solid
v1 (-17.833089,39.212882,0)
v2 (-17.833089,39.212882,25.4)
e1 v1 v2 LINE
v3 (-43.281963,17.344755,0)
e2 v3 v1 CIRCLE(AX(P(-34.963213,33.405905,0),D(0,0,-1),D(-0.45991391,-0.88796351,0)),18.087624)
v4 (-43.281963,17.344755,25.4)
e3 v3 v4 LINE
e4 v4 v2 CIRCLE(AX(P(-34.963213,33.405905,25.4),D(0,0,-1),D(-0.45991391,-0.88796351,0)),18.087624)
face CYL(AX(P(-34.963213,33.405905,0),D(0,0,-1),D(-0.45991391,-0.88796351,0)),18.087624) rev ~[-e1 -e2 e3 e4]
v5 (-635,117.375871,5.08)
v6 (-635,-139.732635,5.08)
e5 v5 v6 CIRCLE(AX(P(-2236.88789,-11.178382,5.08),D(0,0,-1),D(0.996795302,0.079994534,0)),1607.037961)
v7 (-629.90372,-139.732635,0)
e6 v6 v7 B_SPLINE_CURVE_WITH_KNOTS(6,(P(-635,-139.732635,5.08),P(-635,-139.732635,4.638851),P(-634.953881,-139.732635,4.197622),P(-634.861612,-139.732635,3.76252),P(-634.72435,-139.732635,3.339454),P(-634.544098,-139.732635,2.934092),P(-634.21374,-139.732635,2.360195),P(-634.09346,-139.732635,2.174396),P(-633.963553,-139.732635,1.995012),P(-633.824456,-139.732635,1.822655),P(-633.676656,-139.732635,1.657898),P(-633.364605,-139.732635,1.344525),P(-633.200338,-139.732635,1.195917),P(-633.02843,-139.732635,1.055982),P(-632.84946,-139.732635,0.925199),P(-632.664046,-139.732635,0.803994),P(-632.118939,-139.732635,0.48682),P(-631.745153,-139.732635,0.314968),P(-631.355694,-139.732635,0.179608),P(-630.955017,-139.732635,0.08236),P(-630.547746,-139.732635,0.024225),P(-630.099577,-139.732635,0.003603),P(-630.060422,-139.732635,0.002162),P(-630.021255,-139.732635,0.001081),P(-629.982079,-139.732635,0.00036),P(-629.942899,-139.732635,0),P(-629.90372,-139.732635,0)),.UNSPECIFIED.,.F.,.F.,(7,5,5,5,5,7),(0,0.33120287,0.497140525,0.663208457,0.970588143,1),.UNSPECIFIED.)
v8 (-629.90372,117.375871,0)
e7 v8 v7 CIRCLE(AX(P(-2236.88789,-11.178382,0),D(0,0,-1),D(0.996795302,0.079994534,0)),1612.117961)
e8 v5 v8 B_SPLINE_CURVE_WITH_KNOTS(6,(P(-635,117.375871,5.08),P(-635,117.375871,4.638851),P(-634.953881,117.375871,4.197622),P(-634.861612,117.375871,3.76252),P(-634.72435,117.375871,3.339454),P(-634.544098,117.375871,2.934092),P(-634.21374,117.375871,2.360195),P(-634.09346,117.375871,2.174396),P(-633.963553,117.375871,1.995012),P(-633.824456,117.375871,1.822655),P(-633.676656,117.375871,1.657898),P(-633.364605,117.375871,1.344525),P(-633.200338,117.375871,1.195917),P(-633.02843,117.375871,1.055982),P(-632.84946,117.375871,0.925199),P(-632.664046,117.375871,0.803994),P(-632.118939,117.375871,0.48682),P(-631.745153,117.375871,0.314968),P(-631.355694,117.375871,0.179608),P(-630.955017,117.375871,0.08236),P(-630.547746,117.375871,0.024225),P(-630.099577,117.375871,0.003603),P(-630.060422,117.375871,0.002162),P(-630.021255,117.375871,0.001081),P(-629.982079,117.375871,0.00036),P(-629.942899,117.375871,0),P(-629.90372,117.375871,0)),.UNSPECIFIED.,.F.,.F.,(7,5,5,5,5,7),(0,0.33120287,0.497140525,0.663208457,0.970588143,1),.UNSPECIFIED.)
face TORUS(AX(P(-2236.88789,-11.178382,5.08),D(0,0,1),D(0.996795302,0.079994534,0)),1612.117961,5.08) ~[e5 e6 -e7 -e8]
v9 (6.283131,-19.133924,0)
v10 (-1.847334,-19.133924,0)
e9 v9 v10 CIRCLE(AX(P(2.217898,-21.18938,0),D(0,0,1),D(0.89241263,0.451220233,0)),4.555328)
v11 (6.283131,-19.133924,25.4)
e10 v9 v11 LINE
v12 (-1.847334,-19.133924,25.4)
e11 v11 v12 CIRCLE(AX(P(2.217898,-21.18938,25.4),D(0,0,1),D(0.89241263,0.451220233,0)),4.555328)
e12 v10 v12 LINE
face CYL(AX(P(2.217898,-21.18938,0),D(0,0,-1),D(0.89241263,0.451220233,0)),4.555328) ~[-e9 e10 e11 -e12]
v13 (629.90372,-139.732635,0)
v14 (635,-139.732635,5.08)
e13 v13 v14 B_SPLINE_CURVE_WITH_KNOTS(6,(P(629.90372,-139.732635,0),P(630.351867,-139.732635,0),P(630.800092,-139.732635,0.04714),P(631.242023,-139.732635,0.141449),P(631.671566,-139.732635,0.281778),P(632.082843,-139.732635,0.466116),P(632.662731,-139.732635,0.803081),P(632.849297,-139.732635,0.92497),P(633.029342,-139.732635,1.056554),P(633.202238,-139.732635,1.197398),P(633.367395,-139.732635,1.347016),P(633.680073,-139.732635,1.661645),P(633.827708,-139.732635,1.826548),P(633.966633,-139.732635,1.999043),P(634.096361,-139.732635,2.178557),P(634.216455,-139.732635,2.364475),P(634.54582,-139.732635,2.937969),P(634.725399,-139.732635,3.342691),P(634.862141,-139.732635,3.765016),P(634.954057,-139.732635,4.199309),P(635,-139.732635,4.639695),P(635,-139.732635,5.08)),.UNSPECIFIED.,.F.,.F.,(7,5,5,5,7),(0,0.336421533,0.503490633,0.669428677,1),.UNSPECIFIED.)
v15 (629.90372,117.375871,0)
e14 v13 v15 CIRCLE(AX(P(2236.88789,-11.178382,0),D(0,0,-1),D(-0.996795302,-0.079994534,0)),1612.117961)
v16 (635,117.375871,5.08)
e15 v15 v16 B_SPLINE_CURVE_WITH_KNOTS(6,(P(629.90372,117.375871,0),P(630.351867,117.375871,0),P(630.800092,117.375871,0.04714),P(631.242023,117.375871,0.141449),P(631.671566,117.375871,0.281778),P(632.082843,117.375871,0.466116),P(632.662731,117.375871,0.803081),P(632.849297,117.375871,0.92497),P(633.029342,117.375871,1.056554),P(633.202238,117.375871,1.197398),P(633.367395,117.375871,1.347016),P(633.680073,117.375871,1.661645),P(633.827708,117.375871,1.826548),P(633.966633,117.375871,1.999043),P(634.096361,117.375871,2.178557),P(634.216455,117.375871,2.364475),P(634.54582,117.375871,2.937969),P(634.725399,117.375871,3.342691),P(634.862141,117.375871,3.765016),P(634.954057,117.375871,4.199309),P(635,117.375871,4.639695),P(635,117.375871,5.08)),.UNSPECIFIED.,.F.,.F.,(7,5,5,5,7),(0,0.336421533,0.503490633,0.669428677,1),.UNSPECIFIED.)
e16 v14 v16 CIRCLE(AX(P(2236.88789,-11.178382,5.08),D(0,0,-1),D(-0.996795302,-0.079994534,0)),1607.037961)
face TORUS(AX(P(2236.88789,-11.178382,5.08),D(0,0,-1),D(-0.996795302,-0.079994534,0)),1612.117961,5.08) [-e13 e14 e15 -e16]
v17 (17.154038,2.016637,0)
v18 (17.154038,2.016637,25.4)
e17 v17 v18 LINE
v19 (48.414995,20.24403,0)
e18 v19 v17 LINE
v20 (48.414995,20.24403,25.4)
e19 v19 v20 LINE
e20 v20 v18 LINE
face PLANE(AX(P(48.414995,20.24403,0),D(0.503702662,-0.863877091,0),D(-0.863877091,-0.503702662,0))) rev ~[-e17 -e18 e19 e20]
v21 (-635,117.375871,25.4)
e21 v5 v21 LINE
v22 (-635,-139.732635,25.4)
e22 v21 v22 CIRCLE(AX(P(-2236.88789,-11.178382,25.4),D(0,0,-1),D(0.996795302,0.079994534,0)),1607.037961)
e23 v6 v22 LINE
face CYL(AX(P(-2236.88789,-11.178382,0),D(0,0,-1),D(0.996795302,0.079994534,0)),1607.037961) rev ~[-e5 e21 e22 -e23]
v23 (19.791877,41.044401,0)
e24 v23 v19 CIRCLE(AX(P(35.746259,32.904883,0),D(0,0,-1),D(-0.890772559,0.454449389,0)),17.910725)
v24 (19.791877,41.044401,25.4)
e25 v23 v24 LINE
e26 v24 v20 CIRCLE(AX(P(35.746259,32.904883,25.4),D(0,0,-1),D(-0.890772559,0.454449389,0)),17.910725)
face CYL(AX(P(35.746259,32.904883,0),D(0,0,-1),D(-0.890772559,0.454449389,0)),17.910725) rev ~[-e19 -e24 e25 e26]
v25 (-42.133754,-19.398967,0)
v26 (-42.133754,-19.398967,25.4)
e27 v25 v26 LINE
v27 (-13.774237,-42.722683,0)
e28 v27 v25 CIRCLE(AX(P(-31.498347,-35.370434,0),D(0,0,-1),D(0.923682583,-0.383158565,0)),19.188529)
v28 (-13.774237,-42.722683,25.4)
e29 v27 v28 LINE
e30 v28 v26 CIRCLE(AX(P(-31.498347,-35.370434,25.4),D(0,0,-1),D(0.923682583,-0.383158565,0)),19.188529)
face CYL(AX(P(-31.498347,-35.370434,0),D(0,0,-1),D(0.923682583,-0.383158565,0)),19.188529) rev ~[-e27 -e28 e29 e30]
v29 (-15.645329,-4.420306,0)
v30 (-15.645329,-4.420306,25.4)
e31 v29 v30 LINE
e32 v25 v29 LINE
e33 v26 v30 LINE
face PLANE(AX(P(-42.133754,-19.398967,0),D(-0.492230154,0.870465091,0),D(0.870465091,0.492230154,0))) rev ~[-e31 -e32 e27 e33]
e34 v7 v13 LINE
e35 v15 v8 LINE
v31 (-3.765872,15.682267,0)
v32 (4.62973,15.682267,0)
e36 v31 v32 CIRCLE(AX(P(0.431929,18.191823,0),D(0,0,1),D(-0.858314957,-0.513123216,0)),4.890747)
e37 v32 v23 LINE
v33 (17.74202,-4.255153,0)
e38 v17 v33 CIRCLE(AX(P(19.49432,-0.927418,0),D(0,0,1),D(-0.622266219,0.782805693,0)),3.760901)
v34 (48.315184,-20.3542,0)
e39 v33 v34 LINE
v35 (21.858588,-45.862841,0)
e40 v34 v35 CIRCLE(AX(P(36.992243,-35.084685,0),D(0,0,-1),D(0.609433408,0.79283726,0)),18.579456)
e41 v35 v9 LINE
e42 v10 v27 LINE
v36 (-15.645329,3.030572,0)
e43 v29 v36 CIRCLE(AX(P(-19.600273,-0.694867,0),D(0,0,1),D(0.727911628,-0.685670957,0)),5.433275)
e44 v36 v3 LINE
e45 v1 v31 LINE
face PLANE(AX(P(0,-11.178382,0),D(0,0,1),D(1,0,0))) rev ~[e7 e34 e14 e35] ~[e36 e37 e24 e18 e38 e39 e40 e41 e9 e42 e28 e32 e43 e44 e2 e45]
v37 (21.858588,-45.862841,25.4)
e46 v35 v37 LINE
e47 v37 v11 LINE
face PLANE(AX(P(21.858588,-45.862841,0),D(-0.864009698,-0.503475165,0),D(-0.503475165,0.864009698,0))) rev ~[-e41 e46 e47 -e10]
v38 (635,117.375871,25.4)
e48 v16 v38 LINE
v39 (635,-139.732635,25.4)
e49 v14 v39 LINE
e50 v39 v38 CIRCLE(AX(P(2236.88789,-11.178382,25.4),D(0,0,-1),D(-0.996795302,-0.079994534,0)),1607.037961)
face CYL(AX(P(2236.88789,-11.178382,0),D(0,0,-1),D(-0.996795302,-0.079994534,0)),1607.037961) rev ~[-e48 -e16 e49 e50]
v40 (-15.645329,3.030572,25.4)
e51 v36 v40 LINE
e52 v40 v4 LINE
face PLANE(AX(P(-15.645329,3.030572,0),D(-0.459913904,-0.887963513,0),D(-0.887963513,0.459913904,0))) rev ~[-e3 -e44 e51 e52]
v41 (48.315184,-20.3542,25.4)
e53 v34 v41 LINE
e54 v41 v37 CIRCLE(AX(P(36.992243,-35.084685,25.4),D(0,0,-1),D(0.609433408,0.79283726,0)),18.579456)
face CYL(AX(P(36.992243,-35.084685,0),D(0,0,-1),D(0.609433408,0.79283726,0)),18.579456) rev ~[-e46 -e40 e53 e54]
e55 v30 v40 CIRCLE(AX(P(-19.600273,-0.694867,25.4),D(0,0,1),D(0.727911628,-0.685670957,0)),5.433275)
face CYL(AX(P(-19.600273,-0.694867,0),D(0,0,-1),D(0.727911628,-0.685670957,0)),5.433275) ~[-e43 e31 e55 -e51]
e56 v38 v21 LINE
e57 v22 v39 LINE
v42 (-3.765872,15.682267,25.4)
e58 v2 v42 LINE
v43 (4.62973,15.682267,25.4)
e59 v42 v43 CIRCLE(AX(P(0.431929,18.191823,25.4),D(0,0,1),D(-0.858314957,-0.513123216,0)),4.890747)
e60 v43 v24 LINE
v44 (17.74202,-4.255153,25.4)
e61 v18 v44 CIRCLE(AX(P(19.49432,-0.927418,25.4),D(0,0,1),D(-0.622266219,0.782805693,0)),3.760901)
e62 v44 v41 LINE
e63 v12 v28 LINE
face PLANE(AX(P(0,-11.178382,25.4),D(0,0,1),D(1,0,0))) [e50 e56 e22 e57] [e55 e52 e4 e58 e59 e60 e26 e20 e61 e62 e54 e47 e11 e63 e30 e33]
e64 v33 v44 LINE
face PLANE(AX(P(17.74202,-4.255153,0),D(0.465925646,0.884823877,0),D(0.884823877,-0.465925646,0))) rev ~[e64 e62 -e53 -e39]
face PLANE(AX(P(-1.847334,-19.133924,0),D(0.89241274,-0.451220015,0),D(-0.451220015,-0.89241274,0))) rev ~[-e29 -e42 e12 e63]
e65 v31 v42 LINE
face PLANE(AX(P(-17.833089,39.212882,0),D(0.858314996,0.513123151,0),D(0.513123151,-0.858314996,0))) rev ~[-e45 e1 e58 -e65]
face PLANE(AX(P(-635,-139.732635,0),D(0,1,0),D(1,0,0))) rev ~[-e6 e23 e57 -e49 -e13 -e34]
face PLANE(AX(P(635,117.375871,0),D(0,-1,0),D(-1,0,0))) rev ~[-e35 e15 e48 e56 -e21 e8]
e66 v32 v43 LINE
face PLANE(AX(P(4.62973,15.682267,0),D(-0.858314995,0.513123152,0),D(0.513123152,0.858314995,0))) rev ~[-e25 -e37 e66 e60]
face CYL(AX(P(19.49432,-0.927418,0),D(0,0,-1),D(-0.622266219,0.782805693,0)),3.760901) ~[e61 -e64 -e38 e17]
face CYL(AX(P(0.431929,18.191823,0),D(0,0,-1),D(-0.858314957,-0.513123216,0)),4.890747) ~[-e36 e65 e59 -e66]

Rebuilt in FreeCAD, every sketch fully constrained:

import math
import FreeCAD as App
import Part
import Sketcher

V = App.Vector
Q = App.Units.Quantity


def edges_at(feature, points):
    """Names of the edges that pass closest to the given points."""
    edges = feature.Shape.Edges
    near = lambda p: min(range(len(edges)), key=lambda i: edges[i].distToShape(Part.Vertex(*p))[0])
    return sorted({f"Edge{near(p) + 1}" for p in points})

doc = App.newDocument("Part")
params = doc.addObject("Spreadsheet::Sheet", "Params")
for row, (alias, value) in enumerate([
    ("sketch1_width", "50 in"),
    ("sketch1_width2", "50 in"),
    ("pad1_length", "1 in"),
    ("fillet_radius", "0.2 in"),
    ("fillet2_radius", "0.2 in"),
], start=1):
    params.set(f"A{row}", alias)
    params.set(f"B{row}", "=" + value)
    params.setAlias(f"B{row}", alias)

body = doc.addObject("PartDesign::Body", "Body")

# Sketch on XY plane
sketch1 = body.newObject("Sketcher::SketchObject", "Sketch")
sketch1.AttachmentSupport = (doc.getObject("XY_Plane"), [""])
sketch1.MapMode = "FlatFace"
sketch1.addGeometry([
    Part.ArcOfCircle(Part.Circle(V(-2236.88789, -11.178382, 0), V(0, 0, 1), 1607.037961), math.radians(-4.588252), math.radians(4.588252)),  # 0
    Part.LineSegment(V(-635, -139.732635, 0), V(635, -139.732635, 0)),  # 1
    Part.ArcOfCircle(Part.Circle(V(2236.88789, -11.178382, 0), V(0, 0, 1), 1607.037961), math.radians(175.411748), math.radians(184.588252)),  # 2
    Part.LineSegment(V(635, 117.375871, 0), V(-635, 117.375871, 0)),  # 3
    Part.LineSegment(V(-15.645329, 3.030572, 0), V(-43.281963, 17.344755, 0)),  # 4
    Part.ArcOfCircle(Part.Circle(V(-34.963213, 33.405905, 0), V(0, 0, 1), 18.087624), math.radians(18.726254), math.radians(242.618448)),  # 5
    Part.LineSegment(V(-17.833089, 39.212882, 0), V(-3.765872, 15.682267, 0)),  # 6
    Part.ArcOfCircle(Part.Circle(V(0.431929, 18.191823, 0), V(0, 0, 1), 4.890747), math.radians(-149.12791), math.radians(-30.87209)),  # 7
    Part.LineSegment(V(4.62973, 15.682267, 0), V(19.791877, 41.044401, 0)),  # 8
    Part.ArcOfCircle(Part.Circle(V(35.746259, 32.904883, 0), V(0, 0, 1), 17.910725), math.radians(-44.982169), math.radians(152.970487)),  # 9
    Part.LineSegment(V(48.414995, 20.24403, 0), V(17.154038, 2.016637, 0)),  # 10
    Part.ArcOfCircle(Part.Circle(V(19.49432, -0.927418, 0), V(0, 0, 1), 3.760901), math.radians(128.481815), math.radians(242.229865)),  # 11
    Part.LineSegment(V(17.74202, -4.255153, 0), V(48.315184, -20.3542, 0)),  # 12
    Part.ArcOfCircle(Part.Circle(V(36.992243, -35.084685, 0), V(0, 0, 1), 18.579456), math.radians(-144.541613), math.radians(52.451454)),  # 13
    Part.LineSegment(V(21.858588, -45.862841, 0), V(6.283131, -19.133924, 0)),  # 14
    Part.ArcOfCircle(Part.Circle(V(2.217898, -21.18938, 0), V(0, 0, 1), 4.555328), math.radians(26.822), math.radians(153.178)),  # 15
    Part.LineSegment(V(-1.847334, -19.133924, 0), V(-13.774237, -42.722683, 0)),  # 16
    Part.ArcOfCircle(Part.Circle(V(-31.498347, -35.370434, 0), V(0, 0, 1), 19.188529), math.radians(123.659664), math.radians(337.470531)),  # 17
    Part.LineSegment(V(-42.133754, -19.398967, 0), V(-15.645329, -4.420306, 0)),  # 18
    Part.ArcOfCircle(Part.Circle(V(-19.600273, -0.694867, 0), V(0, 0, 1), 5.433275), math.radians(-43.288397), math.radians(43.288397)),  # 19
], False)
sketch1.addConstraint([
    Sketcher.Constraint("Coincident", 0, 1, 1, 1),
    Sketcher.Constraint("Coincident", 1, 2, 2, 2),
    Sketcher.Constraint("Coincident", 2, 1, 3, 1),
    Sketcher.Constraint("Coincident", 3, 2, 0, 2),
    Sketcher.Constraint("Coincident", 4, 2, 5, 2),
    Sketcher.Constraint("Coincident", 5, 1, 6, 1),
    Sketcher.Constraint("Coincident", 6, 2, 7, 1),
    Sketcher.Constraint("Coincident", 7, 2, 8, 1),
    Sketcher.Constraint("Coincident", 8, 2, 9, 2),
    Sketcher.Constraint("Coincident", 9, 1, 10, 1),
    Sketcher.Constraint("Coincident", 10, 2, 11, 1),
    Sketcher.Constraint("Coincident", 11, 2, 12, 1),
    Sketcher.Constraint("Coincident", 12, 2, 13, 2),
    Sketcher.Constraint("Coincident", 13, 1, 14, 1),
    Sketcher.Constraint("Coincident", 14, 2, 15, 1),
    Sketcher.Constraint("Coincident", 15, 2, 16, 1),
    Sketcher.Constraint("Coincident", 16, 2, 17, 2),
    Sketcher.Constraint("Coincident", 17, 1, 18, 1),
    Sketcher.Constraint("Coincident", 18, 2, 19, 1),
    Sketcher.Constraint("Coincident", 19, 2, 4, 1),
    Sketcher.Constraint("Horizontal", 1),
    Sketcher.Constraint("Horizontal", 3),
    Sketcher.Constraint("DistanceX", 1, 1, 1, 2, Q("50 in")),
    Sketcher.Constraint("DistanceX", 3, 2, 3, 1, Q("50 in")),
    Sketcher.Constraint("DistanceX", 0, 1, -1, 1, Q("25 in")),
    Sketcher.Constraint("DistanceX", 3, 2, -1, 1, Q("25 in")),
    Sketcher.Constraint("Radius", 11, 3.760901),
    Sketcher.Constraint("Radius", 0, 1607.037961),
    Sketcher.Constraint("Radius", 2, 1607.037961),
    Sketcher.Constraint("Radius", 15, 4.555328),
    Sketcher.Constraint("Radius", 17, 19.188529),
    Sketcher.Constraint("Radius", 5, 18.087624),
    Sketcher.Constraint("Radius", 7, 4.890747),
    Sketcher.Constraint("Radius", 9, 17.910725),
    Sketcher.Constraint("Radius", 13, 18.579456),
    Sketcher.Constraint("Radius", 19, 5.433275),
    Sketcher.Constraint("Distance", 14, 30.935899),
    Sketcher.Constraint("DistanceX", -1, 1, 15, 3, 2.217898),
    Sketcher.Constraint("DistanceY", -1, 1, 8, 2, 41.044401),
    Sketcher.Constraint("DistanceY", 12, 2, -1, 1, 20.3542),
    Sketcher.Constraint("DistanceY", 11, 3, 9, 3, 33.832301),
    Sketcher.Constraint("DistanceY", 9, 3, 5, 1, 6.307999),
    Sketcher.Constraint("DistanceX", 6, 2, 7, 3, 4.197801),
    Sketcher.Constraint("DistanceX", 19, 3, 6, 2, 15.834401),
    Sketcher.Constraint("DistanceX", 7, 3, 7, 2, 4.197801),
    Sketcher.Constraint("DistanceX", 11, 2, 11, 3, 1.7523),
    Sketcher.Constraint("DistanceY", 17, 1, 19, 3, 18.7041),
    Sketcher.Constraint("Distance", 8, 29.548749),
    Sketcher.Constraint("Distance", 10, 36.186811),
    Sketcher.Constraint("DistanceX", 0, 3, -1, 1, 2236.88789),
    Sketcher.Constraint("DistanceY", 0, 3, -1, 1, 11.178382),
    Sketcher.Constraint("DistanceX", -1, 1, 7, 3, 0.431929),
    Sketcher.Constraint("DistanceX", -1, 1, 9, 3, 35.746259),
    Sketcher.Constraint("DistanceX", -1, 1, 11, 3, 19.49432),
    Sketcher.Constraint("DistanceY", 15, 3, -1, 1, 21.18938),
    Sketcher.Constraint("DistanceX", 5, 1, -1, 1, 17.833089),
    Sketcher.Constraint("DistanceY", -1, 1, 9, 1, 20.24403),
    Sketcher.Constraint("DistanceX", -1, 1, 10, 2, 17.154038),
    Sketcher.Constraint("DistanceY", 13, 1, -1, 1, 45.862841),
    Sketcher.Constraint("DistanceX", -1, 1, 14, 2, 6.283131),
    Sketcher.Constraint("DistanceX", 18, 2, -1, 1, 15.645329),
    Sketcher.Constraint("DistanceX", 19, 2, -1, 1, 15.645329),
    Sketcher.Constraint("DistanceY", -1, 1, 19, 2, 3.030572),
    Sketcher.Constraint("DistanceY", 9, 3, 5, 3, 0.501022),
    Sketcher.Constraint("DistanceY", 13, 3, 5, 3, 68.49059),
    Sketcher.Constraint("DistanceX", 17, 3, 13, 3, 68.49059),
    Sketcher.Constraint("DistanceY", 17, 3, 13, 3, 0.285749),
    Sketcher.Constraint("DistanceX", 4, 2, 5, 3, 8.31875),
    Sketcher.Constraint("DistanceY", 15, 2, 11, 2, 14.878771),
    Sketcher.Constraint("DistanceX", 17, 3, 16, 2, 17.72411),
])
sketch1.setExpression("Constraints[22]", "Params.sketch1_width")
sketch1.setExpression("Constraints[23]", "Params.sketch1_width2")
pad1 = body.newObject("PartDesign::Pad", "Pad")
pad1.Profile = sketch1
pad1.setExpression("Length", "Params.pad1_length")
doc.recompute()

fillet = body.newObject("PartDesign::Fillet", "Fillet")
fillet.Base = (pad1, edges_at(pad1, [(-629.85, -11.178, 0)]))
fillet.setExpression("Radius", "Params.fillet_radius")
doc.recompute()

fillet2 = body.newObject("PartDesign::Fillet", "Fillet001")
fillet2.Base = (fillet, edges_at(fillet, [(629.85, -11.178, 0)]))
fillet2.setExpression("Radius", "Params.fillet2_radius")

doc.recompute()
